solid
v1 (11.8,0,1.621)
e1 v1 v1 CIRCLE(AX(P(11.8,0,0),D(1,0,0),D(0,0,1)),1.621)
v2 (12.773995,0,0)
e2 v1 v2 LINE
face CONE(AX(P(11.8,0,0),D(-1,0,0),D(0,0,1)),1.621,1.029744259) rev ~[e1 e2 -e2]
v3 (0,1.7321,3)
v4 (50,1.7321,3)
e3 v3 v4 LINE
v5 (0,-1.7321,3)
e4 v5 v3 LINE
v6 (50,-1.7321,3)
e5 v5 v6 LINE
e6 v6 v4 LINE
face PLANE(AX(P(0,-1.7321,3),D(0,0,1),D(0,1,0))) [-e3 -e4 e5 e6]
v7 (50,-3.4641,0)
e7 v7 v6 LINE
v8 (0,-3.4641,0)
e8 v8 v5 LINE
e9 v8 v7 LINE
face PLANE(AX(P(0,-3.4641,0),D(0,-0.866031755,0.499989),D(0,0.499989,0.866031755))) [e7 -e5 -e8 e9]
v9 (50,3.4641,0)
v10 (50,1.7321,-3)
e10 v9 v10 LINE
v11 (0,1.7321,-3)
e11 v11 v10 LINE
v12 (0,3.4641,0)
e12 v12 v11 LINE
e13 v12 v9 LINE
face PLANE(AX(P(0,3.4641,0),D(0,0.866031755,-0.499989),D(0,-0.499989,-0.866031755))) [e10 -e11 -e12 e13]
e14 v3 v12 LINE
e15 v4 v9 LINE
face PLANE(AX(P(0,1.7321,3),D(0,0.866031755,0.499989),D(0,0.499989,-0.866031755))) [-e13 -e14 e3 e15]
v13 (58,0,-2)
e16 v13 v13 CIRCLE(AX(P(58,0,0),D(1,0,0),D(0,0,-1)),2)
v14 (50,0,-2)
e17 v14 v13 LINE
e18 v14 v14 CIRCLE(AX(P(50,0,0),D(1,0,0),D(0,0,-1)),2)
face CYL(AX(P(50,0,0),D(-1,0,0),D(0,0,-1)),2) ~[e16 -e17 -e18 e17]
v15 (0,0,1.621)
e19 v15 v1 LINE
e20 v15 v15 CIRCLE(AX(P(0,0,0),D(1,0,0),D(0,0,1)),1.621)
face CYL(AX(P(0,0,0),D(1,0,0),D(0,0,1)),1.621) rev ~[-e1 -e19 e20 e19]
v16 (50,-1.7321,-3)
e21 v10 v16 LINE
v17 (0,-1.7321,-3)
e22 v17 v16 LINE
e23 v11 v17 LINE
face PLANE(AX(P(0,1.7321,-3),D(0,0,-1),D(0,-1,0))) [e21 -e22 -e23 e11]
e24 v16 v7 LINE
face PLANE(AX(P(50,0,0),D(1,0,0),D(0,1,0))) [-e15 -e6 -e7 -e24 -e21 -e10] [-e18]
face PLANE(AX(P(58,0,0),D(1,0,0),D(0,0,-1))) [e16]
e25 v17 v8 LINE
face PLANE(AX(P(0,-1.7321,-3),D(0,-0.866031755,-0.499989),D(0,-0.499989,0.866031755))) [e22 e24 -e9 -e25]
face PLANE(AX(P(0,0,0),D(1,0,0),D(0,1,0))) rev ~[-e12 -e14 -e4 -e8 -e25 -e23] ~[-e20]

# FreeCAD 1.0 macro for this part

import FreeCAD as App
import Part
import Sketcher

V = App.Vector
Q = App.Units.Quantity

doc = App.newDocument("Part")
body = doc.addObject("PartDesign::Body", "Body")

# Sketch on YZ plane
sketch1 = doc.addObject("Sketcher::SketchObject", "Sketch")
body.addObject(sketch1)
sketch1.AttachmentSupport = (doc.YZ_Plane, [""])
sketch1.MapMode = "FlatFace"
sketch1.addGeometry([
    Part.LineSegment(V(-1.7, -3, 0), V(1.7, -3, 0)),  # 0
    Part.LineSegment(V(1.7, -3, 0), V(3.5, 0, 0)),  # 1
    Part.LineSegment(V(3.5, 0, 0), V(1.7, 3, 0)),  # 2
    Part.LineSegment(V(1.7, 3, 0), V(-1.7, 3, 0)),  # 3
    Part.LineSegment(V(-1.7, 3, 0), V(-3.5, 0, 0)),  # 4
    Part.LineSegment(V(-3.5, 0, 0), V(-1.7, -3, 0)),  # 5
], False)
sketch1.addConstraint([
    Sketcher.Constraint("Coincident", 0, 2, 1, 1),
    Sketcher.Constraint("Coincident", 1, 2, 2, 1),
    Sketcher.Constraint("Coincident", 2, 2, 3, 1),
    Sketcher.Constraint("Coincident", 3, 2, 4, 1),
    Sketcher.Constraint("Coincident", 4, 2, 5, 1),
    Sketcher.Constraint("Coincident", 5, 2, 0, 1),
    Sketcher.Constraint("Horizontal", 0),
    Sketcher.Constraint("Horizontal", 3),
    Sketcher.Constraint("Symmetric", 0, 2, 3, 2, -1, 1),
    Sketcher.Constraint("Symmetric", 1, 2, 4, 2, -1, 1),
    Sketcher.Constraint("PointOnObject", 1, 2, -1),
    Sketcher.Constraint("Parallel", 2, 5),
    Sketcher.Constraint("Vertical", 0, 2, 2, 2),
    Sketcher.Constraint("DistanceY", 0, 2, 2, 2, Q("6 mm")),
    Sketcher.Constraint("Angle", 1, Q("60.0007 deg")),
    Sketcher.Constraint("DistanceX", 0, 1, 0, 2, Q("3.4642 mm")),
])
pad1 = doc.addObject("PartDesign::Pad", "Pad")
body.addObject(pad1)
pad1.Profile = sketch1
pad1.Length = 50

# Sketch on YZ plane
sketch2 = doc.addObject("Sketcher::SketchObject", "Sketch001")
body.addObject(sketch2)
sketch2.AttachmentSupport = (doc.YZ_Plane, [""])
sketch2.MapMode = "FlatFace"
sketch2.AttachmentOffset = App.Placement(V(0, 0, 50), App.Rotation())
sketch2.addGeometry(Part.Circle(V(0, 0, 0), V(0, 0, 1), 2), False)
sketch2.addConstraint([
    Sketcher.Constraint("Coincident", 0, 3, -1, 1),
    Sketcher.Constraint("Diameter", 0, Q("4 mm")),
])
pad2 = doc.addObject("PartDesign::Pad", "Pad001")
body.addObject(pad2)
pad2.Profile = sketch2
pad2.Length = 8

# Sketch on YZ plane
sketch3 = doc.addObject("Sketcher::SketchObject", "Sketch002")
body.addObject(sketch3)
sketch3.AttachmentSupport = (doc.YZ_Plane, [""])
sketch3.MapMode = "FlatFace"
sketch3.addGeometry(Part.Circle(V(0, 0, 0), V(0, 0, 1), 1.6), False)
sketch3.addConstraint([
    Sketcher.Constraint("Coincident", 0, 3, -1, 1),
    Sketcher.Constraint("Diameter", 0, Q("3.242 mm")),
])
doc.recompute()
hole = doc.addObject("PartDesign::Hole", "Hole")
body.addObject(hole)
hole.Profile = sketch3
hole.ThreadType = "None"
hole.Diameter = 3.242
hole.DepthType = "Dimension"
hole.Depth = 11.8
hole.DrillPoint = "Angled"
hole.DrillPointAngle = 118
hole.Reversed = True

doc.recompute()
